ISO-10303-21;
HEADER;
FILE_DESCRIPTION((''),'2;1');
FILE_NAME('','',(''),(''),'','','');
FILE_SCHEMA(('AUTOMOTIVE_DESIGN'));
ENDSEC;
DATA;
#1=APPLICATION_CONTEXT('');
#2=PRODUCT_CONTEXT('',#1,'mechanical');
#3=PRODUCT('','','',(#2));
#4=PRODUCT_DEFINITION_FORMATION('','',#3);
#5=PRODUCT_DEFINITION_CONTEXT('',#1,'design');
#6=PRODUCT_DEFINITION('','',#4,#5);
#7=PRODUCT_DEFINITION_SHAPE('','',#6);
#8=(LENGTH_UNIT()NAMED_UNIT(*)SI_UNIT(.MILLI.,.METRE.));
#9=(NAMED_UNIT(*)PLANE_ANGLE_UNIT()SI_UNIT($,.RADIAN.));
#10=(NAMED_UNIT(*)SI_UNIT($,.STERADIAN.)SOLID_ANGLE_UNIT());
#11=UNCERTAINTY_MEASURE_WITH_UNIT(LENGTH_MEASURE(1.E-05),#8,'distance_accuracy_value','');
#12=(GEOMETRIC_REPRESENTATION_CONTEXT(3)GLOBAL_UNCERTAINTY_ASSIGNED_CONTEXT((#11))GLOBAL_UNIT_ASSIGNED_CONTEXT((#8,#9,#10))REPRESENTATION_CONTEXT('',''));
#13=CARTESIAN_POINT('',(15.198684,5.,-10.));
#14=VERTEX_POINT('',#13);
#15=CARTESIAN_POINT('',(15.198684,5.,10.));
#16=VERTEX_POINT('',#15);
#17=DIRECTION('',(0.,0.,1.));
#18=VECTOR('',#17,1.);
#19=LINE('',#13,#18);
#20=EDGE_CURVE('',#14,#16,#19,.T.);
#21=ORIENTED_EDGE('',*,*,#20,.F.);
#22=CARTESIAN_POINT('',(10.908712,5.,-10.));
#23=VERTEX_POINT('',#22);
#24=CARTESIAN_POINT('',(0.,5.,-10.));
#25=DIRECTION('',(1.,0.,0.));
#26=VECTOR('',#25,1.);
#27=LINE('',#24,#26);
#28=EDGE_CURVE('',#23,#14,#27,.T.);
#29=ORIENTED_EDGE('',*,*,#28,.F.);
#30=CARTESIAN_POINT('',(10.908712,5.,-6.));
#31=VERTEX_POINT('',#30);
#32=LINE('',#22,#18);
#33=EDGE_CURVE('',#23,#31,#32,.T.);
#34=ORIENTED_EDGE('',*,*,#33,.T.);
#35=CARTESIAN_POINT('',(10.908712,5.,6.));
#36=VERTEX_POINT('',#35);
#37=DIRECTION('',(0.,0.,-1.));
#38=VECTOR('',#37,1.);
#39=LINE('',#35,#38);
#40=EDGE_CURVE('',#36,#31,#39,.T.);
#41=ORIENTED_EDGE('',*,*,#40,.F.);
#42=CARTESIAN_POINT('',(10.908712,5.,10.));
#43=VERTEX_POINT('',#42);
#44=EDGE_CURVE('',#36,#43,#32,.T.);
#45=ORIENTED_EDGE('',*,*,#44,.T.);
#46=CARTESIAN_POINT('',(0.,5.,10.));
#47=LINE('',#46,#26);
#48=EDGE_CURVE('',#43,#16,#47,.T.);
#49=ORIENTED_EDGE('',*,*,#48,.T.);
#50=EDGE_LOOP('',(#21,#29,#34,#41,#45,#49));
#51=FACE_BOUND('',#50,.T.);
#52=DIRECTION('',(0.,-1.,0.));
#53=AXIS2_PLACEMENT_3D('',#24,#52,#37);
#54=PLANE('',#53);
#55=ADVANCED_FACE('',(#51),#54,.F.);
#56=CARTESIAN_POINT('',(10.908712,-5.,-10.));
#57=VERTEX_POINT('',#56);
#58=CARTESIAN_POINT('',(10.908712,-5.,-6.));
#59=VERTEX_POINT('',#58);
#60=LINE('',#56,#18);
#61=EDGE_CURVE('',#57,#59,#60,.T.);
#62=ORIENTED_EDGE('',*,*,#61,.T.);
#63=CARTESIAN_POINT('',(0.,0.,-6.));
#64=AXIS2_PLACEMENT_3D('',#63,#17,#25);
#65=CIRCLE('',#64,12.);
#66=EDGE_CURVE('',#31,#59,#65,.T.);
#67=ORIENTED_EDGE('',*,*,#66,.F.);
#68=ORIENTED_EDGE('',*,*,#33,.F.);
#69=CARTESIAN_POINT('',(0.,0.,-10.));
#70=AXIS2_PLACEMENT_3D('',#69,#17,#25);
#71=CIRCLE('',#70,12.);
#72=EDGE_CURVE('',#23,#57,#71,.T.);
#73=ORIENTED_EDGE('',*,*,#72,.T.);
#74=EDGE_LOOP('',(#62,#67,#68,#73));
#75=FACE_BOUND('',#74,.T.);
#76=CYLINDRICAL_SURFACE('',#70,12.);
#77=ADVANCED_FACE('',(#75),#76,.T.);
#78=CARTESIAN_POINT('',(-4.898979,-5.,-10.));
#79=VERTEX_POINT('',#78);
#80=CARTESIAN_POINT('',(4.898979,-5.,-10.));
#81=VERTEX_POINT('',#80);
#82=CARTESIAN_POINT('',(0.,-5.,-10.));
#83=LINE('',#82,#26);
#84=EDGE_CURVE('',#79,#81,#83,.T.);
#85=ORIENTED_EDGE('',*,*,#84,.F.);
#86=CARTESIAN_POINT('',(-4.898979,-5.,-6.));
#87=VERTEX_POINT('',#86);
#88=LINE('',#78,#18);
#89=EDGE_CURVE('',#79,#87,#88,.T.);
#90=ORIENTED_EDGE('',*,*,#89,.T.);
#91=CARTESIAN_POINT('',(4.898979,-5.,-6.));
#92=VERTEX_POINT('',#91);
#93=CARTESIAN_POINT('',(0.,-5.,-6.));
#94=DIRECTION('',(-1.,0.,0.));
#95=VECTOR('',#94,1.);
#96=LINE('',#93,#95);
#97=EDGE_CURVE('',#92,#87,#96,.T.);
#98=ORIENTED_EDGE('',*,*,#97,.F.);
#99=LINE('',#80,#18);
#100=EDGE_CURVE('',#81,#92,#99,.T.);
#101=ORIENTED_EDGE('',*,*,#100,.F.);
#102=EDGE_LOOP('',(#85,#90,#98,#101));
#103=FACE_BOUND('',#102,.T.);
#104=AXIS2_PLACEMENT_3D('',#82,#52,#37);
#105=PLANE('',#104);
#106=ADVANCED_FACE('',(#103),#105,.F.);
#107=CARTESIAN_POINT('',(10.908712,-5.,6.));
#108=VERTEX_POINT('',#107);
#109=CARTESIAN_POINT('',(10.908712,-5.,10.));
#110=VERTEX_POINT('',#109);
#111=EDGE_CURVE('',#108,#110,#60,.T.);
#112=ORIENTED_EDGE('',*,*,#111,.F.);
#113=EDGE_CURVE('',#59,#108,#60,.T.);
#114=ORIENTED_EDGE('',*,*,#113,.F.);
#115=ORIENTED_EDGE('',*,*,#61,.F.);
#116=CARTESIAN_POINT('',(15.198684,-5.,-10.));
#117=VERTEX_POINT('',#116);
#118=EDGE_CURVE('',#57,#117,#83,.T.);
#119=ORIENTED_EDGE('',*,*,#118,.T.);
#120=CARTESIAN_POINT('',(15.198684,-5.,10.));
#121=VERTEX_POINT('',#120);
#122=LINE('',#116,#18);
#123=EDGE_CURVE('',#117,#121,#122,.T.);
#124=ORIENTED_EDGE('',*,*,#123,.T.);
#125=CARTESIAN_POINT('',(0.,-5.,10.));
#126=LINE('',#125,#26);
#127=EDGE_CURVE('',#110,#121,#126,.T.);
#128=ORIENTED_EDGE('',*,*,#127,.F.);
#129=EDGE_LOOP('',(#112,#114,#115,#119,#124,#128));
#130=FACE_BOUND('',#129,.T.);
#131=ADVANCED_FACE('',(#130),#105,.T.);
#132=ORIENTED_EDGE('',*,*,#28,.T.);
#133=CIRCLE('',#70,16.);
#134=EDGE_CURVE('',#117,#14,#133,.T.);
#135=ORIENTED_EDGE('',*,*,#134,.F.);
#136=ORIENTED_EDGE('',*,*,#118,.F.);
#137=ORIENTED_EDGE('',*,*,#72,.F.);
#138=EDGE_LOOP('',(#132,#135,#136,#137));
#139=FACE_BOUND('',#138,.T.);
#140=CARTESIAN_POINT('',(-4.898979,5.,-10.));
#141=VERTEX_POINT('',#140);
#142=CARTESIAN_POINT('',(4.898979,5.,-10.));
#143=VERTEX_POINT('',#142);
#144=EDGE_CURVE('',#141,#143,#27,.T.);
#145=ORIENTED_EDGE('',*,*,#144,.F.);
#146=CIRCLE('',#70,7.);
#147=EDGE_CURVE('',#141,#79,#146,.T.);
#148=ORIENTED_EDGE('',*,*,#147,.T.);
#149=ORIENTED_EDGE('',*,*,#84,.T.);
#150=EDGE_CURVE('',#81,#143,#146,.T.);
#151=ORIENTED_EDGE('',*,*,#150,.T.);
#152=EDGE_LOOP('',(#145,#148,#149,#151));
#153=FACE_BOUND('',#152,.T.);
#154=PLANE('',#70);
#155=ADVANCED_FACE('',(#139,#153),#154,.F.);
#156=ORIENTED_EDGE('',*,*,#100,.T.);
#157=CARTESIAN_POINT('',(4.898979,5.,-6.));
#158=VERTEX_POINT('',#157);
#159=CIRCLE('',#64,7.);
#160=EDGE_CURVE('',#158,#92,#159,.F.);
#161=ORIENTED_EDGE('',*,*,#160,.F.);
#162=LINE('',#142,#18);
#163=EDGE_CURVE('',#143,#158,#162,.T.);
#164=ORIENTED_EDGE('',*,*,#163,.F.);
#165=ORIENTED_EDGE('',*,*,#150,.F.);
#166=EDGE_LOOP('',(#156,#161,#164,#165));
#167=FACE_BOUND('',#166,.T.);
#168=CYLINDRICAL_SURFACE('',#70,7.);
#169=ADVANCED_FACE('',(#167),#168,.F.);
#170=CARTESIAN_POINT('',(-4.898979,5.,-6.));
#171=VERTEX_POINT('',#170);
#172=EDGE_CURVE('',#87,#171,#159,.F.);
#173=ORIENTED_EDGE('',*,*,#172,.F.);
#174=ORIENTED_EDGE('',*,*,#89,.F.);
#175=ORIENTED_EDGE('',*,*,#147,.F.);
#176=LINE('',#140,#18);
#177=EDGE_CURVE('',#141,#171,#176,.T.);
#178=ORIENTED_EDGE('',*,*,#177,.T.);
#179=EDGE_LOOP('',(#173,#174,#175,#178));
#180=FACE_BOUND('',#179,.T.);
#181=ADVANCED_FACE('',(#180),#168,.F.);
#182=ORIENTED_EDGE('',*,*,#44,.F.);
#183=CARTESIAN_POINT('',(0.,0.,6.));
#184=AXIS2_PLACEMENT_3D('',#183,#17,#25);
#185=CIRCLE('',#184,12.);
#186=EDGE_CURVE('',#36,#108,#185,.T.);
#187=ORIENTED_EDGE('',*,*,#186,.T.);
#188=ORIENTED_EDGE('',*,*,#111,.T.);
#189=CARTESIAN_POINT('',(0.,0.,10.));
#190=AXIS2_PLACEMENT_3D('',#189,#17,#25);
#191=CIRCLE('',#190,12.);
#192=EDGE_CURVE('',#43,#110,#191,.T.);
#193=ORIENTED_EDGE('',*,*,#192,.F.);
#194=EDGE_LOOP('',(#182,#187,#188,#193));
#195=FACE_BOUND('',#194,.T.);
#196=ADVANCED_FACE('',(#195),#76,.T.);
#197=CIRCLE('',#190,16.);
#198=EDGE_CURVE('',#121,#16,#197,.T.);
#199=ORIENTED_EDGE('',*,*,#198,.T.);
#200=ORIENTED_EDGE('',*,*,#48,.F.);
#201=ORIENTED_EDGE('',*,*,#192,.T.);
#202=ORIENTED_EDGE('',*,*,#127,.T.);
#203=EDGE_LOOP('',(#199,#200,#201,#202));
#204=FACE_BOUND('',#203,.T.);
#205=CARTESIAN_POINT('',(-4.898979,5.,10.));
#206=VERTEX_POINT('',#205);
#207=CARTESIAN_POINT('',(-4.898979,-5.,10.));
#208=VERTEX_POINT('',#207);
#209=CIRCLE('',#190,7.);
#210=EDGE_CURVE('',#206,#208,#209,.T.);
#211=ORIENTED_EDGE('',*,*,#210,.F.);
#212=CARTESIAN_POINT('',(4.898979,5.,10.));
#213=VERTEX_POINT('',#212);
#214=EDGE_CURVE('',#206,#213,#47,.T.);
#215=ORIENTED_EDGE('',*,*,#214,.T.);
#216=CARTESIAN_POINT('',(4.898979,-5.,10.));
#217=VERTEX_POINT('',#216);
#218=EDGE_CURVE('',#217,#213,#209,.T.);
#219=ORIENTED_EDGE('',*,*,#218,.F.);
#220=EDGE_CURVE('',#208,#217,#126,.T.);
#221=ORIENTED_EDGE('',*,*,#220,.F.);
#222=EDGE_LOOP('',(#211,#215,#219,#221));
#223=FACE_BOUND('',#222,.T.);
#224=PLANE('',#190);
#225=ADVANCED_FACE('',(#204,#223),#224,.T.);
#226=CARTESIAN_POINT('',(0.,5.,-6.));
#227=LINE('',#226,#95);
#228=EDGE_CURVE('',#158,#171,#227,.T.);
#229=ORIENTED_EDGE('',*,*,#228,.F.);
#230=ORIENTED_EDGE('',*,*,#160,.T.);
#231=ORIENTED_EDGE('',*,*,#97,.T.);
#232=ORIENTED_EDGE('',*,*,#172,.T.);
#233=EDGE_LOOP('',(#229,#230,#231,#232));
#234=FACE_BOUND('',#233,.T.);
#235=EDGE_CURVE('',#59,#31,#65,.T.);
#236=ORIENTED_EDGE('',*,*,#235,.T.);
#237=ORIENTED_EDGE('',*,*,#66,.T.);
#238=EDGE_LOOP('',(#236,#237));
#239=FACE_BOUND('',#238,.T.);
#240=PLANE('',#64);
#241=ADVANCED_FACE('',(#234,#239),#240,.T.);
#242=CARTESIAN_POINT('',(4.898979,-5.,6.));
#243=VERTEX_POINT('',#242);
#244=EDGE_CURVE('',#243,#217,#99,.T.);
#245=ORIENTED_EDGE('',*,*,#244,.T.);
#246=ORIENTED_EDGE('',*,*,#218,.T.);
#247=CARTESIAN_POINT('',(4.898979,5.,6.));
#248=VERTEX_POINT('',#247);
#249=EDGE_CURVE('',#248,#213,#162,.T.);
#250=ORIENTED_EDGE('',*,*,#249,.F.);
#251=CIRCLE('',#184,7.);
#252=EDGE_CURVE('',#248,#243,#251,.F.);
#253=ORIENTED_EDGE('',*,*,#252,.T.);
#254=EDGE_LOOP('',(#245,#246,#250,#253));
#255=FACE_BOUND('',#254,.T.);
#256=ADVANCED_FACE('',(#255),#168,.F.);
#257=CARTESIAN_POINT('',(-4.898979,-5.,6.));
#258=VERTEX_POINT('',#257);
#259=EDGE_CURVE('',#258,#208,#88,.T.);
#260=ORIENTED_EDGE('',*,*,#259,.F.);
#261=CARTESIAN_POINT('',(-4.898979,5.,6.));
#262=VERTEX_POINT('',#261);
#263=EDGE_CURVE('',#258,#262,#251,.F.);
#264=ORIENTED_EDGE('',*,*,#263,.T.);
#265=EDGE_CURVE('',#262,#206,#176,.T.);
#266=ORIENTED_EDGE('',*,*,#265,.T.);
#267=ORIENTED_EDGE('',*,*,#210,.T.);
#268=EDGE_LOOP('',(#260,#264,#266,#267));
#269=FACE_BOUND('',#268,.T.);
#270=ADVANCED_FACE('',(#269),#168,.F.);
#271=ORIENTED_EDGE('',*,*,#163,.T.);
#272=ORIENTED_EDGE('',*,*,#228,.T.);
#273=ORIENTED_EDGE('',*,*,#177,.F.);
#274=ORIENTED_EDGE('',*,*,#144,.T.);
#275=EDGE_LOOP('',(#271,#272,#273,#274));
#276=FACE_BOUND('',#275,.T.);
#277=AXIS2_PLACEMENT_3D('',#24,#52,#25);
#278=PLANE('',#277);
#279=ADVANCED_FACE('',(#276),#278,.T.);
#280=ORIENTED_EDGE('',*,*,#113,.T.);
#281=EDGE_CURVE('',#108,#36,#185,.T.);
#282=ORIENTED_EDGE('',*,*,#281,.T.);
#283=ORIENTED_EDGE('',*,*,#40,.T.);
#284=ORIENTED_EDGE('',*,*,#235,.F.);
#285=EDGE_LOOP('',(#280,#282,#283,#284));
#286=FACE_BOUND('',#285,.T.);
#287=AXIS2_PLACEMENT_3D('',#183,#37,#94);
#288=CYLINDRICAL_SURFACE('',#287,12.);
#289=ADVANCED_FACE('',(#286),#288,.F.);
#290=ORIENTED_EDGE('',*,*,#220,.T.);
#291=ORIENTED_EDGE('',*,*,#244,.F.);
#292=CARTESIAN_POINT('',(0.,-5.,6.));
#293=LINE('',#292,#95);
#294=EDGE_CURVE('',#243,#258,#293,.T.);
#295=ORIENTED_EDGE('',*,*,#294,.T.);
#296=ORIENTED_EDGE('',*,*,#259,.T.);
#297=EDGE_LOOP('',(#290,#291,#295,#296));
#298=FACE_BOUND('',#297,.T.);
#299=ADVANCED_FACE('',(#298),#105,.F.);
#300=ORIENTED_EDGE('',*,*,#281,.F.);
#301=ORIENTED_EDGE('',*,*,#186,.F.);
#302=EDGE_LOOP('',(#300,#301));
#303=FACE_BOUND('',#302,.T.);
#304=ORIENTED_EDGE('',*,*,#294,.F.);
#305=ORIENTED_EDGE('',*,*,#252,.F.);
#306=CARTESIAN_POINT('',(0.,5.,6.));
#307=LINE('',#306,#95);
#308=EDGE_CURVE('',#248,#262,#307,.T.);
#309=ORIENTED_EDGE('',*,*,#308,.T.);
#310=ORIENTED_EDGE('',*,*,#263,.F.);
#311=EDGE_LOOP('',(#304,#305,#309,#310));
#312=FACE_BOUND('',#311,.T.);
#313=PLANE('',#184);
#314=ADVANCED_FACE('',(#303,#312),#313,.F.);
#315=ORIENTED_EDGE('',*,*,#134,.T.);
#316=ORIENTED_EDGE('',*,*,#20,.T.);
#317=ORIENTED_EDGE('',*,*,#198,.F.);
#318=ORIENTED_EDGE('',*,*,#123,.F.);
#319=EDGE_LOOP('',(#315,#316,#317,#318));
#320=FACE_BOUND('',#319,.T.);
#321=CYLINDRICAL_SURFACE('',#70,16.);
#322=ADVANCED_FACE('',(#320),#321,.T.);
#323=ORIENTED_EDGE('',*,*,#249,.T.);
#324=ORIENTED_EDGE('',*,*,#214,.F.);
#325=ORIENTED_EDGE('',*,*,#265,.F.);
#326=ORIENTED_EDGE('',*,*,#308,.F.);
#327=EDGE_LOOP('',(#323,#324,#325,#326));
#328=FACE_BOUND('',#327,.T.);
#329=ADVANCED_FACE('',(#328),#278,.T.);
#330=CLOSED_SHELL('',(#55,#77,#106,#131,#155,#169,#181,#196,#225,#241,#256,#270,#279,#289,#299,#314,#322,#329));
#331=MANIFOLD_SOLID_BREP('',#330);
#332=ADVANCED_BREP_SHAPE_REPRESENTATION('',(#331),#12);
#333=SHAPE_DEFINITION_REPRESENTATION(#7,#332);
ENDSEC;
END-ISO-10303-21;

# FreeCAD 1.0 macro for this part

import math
import FreeCAD as App
import Part
import Sketcher
Q = App.Units.Quantity

doc = App.newDocument("Part")
body = doc.addObject("PartDesign::Body", "Body")

# Sketch on XY plane
sketch1 = body.newObject("Sketcher::SketchObject", "Sketch")
sketch1.AttachmentSupport = (doc.getObject("XY_Plane"), [""])
sketch1.MapMode = "FlatFace"
sketch1.addGeometry(Part.ArcOfCircle(Part.Circle(App.Vector(0, 0, 0), App.Vector(0, 0, 1), 12), math.radians(25), math.radians(335)), False)
sketch1.addGeometry(Part.LineSegment(App.Vector(10.9, -5, 0), App.Vector(15.2, -5, 0)), False)
sketch1.addGeometry(Part.ArcOfCircle(Part.Circle(App.Vector(0, 0, 0), App.Vector(0, 0, 1), 16), math.radians(-18), math.radians(18)), False)
sketch1.addGeometry(Part.LineSegment(App.Vector(15.2, 5, 0), App.Vector(10.9, 5, 0)), False)
sketch1.addGeometry(Part.ArcOfCircle(Part.Circle(App.Vector(0, 0, 0), App.Vector(0, 0, 1), 7), math.radians(134), math.radians(226)), False)
sketch1.addGeometry(Part.LineSegment(App.Vector(-4.9, 5, 0), App.Vector(4.9, 5, 0)), False)
sketch1.addGeometry(Part.ArcOfCircle(Part.Circle(App.Vector(0, 0, 0), App.Vector(0, 0, 1), 7), math.radians(-46), math.radians(46)), False)
sketch1.addGeometry(Part.LineSegment(App.Vector(4.9, -5, 0), App.Vector(-4.9, -5, 0)), False)
sketch1.addConstraint(Sketcher.Constraint("Coincident", 0, 2, 1, 1))
sketch1.addConstraint(Sketcher.Constraint("Coincident", 1, 2, 2, 1))
sketch1.addConstraint(Sketcher.Constraint("Coincident", 2, 2, 3, 1))
sketch1.addConstraint(Sketcher.Constraint("Coincident", 3, 2, 0, 1))
sketch1.addConstraint(Sketcher.Constraint("Coincident", 4, 1, 5, 1))
sketch1.addConstraint(Sketcher.Constraint("Coincident", 5, 2, 6, 2))
sketch1.addConstraint(Sketcher.Constraint("Coincident", 6, 1, 7, 1))
sketch1.addConstraint(Sketcher.Constraint("Coincident", 7, 2, 4, 2))
sketch1.addConstraint(Sketcher.Constraint("Horizontal", 1))
sketch1.addConstraint(Sketcher.Constraint("Horizontal", 3))
sketch1.addConstraint(Sketcher.Constraint("Horizontal", 5))
sketch1.addConstraint(Sketcher.Constraint("Horizontal", 7))
sketch1.addConstraint(Sketcher.Constraint("Coincident", 0, 3, -1, 1))
sketch1.addConstraint(Sketcher.Constraint("Coincident", 2, 3, -1, 1))
sketch1.addConstraint(Sketcher.Constraint("Coincident", 4, 3, -1, 1))
sketch1.addConstraint(Sketcher.Constraint("Coincident", 6, 3, -1, 1))
sketch1.addConstraint(Sketcher.Constraint("Equal", 4, 6))
sketch1.addConstraint(Sketcher.Constraint("Horizontal", 3, 2, 4, 1))
sketch1.addConstraint(Sketcher.Constraint("Horizontal", 1, 2, 6, 1))
sketch1.addConstraint(Sketcher.Constraint("Vertical", 1, 2, 2, 2))
sketch1.addConstraint(Sketcher.Constraint("Radius", 0, Q("12 mm")))
sketch1.addConstraint(Sketcher.Constraint("Radius", 2, Q("16 mm")))
sketch1.addConstraint(Sketcher.Constraint("Radius", 4, Q("7 mm")))
sketch1.addConstraint(Sketcher.Constraint("DistanceY", 0, 2, -1, 1, Q("5 mm")))
pad1 = body.newObject("PartDesign::Pad", "Pad")
pad1.Profile = sketch1
pad1.Type = "TwoLengths"
pad1.Length = 10
pad1.Length2 = 10

# Sketch on XY plane
sketch2 = body.newObject("Sketcher::SketchObject", "Sketch001")
sketch2.AttachmentSupport = (doc.getObject("XY_Plane"), [""])
sketch2.MapMode = "FlatFace"
sketch2.addGeometry(Part.Circle(App.Vector(0, 0, 0), App.Vector(0, 0, 1), 12), False)
sketch2.addConstraint(Sketcher.Constraint("Coincident", 0, 3, -1, 1))
sketch2.addConstraint(Sketcher.Constraint("Diameter", 0, Q("24 mm")))
pocket1 = body.newObject("PartDesign::Pocket", "Pocket")
pocket1.Profile = sketch2
pocket1.Type = "TwoLengths"
pocket1.Length = 6
pocket1.Length2 = 6
pocket1.Reversed = True

doc.recompute()
